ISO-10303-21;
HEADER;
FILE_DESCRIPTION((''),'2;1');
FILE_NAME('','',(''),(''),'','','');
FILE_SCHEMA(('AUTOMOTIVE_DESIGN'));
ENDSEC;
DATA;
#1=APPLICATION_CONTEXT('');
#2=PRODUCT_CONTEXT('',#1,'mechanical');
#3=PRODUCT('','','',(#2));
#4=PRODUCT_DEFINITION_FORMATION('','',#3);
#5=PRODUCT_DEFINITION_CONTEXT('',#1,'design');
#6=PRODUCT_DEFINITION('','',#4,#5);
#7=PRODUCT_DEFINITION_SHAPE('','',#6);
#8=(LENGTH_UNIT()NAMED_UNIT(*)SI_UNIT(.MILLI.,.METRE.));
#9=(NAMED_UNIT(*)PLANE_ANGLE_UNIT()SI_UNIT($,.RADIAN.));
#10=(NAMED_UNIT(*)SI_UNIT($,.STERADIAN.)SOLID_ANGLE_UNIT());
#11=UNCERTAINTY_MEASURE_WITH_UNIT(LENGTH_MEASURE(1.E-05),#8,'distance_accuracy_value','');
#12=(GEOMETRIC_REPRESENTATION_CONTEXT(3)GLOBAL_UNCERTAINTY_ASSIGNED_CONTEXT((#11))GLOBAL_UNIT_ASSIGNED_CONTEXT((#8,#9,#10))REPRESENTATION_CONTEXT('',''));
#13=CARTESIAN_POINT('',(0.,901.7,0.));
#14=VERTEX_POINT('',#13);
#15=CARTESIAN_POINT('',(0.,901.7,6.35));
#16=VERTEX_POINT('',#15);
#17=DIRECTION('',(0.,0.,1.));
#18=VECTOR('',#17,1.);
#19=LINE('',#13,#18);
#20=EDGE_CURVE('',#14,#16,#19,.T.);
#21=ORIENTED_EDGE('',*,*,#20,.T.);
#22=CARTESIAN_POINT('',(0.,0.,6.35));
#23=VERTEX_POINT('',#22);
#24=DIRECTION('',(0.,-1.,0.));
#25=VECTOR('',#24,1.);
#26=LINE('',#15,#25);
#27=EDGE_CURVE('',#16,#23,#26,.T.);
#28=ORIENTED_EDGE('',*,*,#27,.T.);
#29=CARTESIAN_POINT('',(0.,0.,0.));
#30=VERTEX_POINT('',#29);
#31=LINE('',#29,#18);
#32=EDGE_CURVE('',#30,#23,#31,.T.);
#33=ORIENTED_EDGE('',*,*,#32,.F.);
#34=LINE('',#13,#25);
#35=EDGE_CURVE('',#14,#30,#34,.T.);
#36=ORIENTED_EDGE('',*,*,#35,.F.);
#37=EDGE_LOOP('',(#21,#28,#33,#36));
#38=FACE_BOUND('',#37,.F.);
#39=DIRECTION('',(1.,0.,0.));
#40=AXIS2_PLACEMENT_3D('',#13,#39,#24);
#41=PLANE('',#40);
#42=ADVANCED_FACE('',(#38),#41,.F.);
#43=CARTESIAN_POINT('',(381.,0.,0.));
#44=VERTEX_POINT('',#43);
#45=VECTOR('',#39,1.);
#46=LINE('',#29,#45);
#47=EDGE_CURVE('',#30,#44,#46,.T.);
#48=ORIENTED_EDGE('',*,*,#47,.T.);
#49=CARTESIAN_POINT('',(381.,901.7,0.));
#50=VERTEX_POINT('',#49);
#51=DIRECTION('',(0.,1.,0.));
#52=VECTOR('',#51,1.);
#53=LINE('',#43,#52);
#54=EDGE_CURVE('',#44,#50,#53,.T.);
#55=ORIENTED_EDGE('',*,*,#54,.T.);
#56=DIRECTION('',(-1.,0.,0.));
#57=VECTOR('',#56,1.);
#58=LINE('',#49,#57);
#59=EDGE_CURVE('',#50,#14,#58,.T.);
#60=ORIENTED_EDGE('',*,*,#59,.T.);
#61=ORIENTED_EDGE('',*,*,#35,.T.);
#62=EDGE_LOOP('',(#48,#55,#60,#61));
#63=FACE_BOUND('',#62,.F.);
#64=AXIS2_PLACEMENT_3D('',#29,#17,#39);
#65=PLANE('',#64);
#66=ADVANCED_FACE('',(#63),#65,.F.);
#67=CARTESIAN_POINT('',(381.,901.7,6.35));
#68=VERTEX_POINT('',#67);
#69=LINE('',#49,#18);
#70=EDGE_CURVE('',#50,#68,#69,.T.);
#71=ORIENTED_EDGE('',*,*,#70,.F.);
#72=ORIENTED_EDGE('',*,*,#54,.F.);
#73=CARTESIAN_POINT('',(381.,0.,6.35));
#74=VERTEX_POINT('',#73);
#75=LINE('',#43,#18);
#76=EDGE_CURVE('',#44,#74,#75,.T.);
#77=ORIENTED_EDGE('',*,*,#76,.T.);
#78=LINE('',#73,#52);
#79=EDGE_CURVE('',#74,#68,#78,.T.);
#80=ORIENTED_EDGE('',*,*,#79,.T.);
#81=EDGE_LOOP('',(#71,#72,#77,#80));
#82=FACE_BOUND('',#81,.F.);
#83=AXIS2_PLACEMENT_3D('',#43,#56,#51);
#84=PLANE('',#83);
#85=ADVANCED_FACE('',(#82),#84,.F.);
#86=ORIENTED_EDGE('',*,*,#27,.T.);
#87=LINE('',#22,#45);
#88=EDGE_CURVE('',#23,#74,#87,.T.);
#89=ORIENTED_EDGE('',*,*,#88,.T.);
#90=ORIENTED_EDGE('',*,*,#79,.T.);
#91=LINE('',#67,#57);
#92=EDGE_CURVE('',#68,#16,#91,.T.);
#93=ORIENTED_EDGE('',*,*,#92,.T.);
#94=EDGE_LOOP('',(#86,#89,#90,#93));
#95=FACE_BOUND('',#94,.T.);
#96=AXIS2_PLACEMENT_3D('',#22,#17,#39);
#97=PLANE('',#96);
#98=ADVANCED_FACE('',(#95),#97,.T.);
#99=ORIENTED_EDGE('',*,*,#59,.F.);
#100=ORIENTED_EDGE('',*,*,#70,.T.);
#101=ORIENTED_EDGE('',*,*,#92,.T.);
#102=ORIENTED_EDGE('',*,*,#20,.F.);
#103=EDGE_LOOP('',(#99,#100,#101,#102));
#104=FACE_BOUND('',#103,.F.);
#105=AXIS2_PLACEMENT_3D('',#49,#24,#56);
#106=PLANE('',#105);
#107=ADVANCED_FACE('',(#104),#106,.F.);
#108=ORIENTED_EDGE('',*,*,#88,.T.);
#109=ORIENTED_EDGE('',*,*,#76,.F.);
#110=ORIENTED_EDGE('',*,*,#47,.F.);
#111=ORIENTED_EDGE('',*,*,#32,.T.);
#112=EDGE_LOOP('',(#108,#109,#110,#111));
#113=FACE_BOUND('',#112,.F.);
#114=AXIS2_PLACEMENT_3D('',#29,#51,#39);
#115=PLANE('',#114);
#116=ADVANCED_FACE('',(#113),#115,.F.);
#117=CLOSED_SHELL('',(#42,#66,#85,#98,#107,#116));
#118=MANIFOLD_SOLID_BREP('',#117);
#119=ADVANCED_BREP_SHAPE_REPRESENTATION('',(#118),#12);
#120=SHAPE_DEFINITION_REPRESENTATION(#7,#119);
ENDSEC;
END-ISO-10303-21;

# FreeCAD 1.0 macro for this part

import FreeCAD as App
import Part
import Sketcher
Q = App.Units.Quantity

doc = App.newDocument("Part")
body = doc.addObject("PartDesign::Body", "Body")

# Sketch on XY plane
sketch1 = doc.addObject("Sketcher::SketchObject", "Sketch")
body.addObject(sketch1)
sketch1.AttachmentSupport = (doc.XY_Plane, [""])
sketch1.MapMode = "FlatFace"
sketch1.addGeometry([
    Part.LineSegment(App.Vector(0, 902, 0), App.Vector(0, 0, 0)),
    Part.LineSegment(App.Vector(0, 0, 0), App.Vector(381, 0, 0)),
    Part.LineSegment(App.Vector(381, 0, 0), App.Vector(381, 902, 0)),
    Part.LineSegment(App.Vector(381, 902, 0), App.Vector(0, 902, 0)),
], False)
sketch1.addConstraint([
    Sketcher.Constraint("Coincident", 0, 2, 1, 1),
    Sketcher.Constraint("Coincident", 1, 2, 2, 1),
    Sketcher.Constraint("Coincident", 2, 2, 3, 1),
    Sketcher.Constraint("Coincident", 3, 2, 0, 1),
    Sketcher.Constraint("Vertical", 0),
    Sketcher.Constraint("Horizontal", 1),
    Sketcher.Constraint("Vertical", 2),
    Sketcher.Constraint("Horizontal", 3),
    Sketcher.Constraint("Coincident", 0, 2, -1, 1),
    Sketcher.Constraint("DistanceX", 1, 1, 1, 2, Q("15 in")),
    Sketcher.Constraint("DistanceY", 0, 2, 0, 1, Q("35.5 in")),
])
pad1 = doc.addObject("PartDesign::Pad", "Pad")
body.addObject(pad1)
pad1.Profile = sketch1
pad1.Length = Q("0.25 in")

doc.recompute()
